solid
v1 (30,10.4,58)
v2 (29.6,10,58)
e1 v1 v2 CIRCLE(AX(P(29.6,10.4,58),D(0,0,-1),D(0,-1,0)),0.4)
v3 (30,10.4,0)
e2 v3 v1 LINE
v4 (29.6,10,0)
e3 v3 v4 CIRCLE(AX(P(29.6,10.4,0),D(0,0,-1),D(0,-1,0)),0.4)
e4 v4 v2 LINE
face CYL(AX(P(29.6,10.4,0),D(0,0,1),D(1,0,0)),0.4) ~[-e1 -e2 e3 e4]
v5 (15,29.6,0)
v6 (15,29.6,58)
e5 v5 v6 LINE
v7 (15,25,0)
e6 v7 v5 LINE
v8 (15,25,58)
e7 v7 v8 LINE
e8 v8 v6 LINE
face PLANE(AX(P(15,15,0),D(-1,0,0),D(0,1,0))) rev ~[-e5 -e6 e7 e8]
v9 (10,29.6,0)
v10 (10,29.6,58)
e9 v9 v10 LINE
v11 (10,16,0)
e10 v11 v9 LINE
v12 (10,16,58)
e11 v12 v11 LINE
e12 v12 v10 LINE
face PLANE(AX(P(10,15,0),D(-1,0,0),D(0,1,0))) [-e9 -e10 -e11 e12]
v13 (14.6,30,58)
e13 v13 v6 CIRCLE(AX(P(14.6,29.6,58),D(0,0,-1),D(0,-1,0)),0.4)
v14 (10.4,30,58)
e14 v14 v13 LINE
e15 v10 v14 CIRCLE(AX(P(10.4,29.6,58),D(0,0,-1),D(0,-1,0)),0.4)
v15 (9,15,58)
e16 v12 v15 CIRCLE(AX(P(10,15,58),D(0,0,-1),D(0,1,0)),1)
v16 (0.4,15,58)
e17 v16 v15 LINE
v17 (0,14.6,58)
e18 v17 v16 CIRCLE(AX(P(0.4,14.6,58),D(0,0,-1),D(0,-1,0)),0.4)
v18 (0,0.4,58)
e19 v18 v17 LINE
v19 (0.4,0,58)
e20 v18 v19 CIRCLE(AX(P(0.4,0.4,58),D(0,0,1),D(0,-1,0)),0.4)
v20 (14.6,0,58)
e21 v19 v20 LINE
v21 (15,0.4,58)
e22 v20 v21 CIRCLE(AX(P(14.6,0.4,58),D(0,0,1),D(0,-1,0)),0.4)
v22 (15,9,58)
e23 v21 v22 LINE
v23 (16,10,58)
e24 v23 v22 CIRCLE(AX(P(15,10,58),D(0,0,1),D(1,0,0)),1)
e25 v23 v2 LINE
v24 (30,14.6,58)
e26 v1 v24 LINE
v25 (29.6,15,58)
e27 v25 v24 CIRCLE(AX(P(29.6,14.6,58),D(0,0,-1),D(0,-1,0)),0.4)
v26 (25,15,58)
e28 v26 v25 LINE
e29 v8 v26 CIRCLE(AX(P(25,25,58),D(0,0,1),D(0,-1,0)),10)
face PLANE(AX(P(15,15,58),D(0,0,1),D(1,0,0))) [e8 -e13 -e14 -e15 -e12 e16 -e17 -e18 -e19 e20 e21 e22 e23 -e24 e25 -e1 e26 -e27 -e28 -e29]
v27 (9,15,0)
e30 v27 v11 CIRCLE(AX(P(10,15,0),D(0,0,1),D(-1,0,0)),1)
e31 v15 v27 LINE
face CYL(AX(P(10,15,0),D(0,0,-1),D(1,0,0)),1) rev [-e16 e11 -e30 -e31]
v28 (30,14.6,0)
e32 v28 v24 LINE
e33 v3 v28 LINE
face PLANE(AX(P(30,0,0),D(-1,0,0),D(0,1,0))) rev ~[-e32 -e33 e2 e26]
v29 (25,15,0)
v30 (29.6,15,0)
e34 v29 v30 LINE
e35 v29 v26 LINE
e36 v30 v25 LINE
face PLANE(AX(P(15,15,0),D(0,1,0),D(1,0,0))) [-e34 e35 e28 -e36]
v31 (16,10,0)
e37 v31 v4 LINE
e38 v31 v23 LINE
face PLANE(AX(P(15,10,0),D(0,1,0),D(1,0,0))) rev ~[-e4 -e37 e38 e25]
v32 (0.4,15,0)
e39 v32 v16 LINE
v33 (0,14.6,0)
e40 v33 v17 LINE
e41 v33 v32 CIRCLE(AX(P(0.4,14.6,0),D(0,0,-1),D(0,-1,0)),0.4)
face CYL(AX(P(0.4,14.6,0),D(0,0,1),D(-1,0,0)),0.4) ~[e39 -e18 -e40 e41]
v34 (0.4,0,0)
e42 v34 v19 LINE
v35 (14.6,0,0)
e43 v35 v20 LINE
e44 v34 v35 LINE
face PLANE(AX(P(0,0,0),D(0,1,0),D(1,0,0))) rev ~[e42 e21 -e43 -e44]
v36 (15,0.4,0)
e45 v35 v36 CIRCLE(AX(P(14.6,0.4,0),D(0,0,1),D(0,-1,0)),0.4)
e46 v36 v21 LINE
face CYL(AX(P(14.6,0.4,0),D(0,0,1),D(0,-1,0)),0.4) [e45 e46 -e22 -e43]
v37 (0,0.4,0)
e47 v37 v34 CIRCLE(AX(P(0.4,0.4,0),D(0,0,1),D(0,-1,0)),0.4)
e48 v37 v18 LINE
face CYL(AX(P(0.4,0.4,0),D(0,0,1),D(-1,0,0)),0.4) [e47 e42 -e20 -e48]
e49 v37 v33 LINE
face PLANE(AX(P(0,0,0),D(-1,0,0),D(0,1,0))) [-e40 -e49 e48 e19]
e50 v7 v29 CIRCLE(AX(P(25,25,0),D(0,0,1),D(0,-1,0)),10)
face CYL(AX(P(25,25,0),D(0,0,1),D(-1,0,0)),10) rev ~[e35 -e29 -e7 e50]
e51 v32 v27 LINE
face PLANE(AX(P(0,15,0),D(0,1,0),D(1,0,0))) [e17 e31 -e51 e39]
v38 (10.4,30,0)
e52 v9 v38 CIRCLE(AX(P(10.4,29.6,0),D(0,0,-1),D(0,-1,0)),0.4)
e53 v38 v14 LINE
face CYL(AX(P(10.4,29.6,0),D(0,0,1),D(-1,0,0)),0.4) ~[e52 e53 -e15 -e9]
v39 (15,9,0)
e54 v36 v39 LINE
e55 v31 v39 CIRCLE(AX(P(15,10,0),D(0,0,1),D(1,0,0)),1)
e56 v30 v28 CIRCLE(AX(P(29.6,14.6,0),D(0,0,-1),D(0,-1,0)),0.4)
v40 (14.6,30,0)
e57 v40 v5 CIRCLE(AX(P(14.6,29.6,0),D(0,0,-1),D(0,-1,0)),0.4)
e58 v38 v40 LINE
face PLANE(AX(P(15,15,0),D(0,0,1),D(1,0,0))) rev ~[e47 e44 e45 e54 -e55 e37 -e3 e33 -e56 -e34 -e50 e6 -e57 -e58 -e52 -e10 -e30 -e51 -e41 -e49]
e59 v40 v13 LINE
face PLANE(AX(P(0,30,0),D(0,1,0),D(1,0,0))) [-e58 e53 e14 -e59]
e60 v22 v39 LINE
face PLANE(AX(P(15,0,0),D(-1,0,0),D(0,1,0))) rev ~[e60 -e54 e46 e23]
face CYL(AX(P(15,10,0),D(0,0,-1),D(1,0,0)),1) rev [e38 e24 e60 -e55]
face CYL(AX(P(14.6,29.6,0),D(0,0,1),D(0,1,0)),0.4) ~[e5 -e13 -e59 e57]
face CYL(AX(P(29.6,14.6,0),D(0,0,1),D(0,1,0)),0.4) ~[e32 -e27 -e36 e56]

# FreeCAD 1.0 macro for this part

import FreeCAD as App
import Part
import Sketcher


def edges_at(feature, points):
    """Names of the edges that pass closest to the given points."""
    edges = feature.Shape.Edges
    near = lambda p: min(range(len(edges)), key=lambda i: edges[i].distToShape(Part.Vertex(*p))[0])
    return sorted({f"Edge{near(p) + 1}" for p in points})


def add_polygon(sketch, points):
    """Adds a closed chain of lines whose ends are joined by coincident constraints."""
    first, n = sketch.GeometryCount, len(points)
    for a, b in zip(points, points[1:] + points[:1]):
        sketch.addGeometry(Part.LineSegment(App.Vector(*a, 0), App.Vector(*b, 0)), False)
    for i in range(n):
        sketch.addConstraint(Sketcher.Constraint("Coincident", first + i, 2, first + (i + 1) % n, 1))

doc = App.newDocument("Part")
body = doc.addObject("PartDesign::Body", "Body")

sketch1 = body.newObject("Sketcher::SketchObject", "Sketch")
sketch1.AttachmentSupport = (doc.getObject("XY_Plane"), [""])
sketch1.MapMode = "FlatFace"
add_polygon(sketch1, [(15, 30), (15, 15), (30, 15), (30, 30)])
sketch1.addConstraint(Sketcher.Constraint("Vertical", 0))
sketch1.addConstraint(Sketcher.Constraint("Horizontal", 1))
sketch1.addConstraint(Sketcher.Constraint("Vertical", 2))
sketch1.addConstraint(Sketcher.Constraint("Horizontal", 3))
sketch1.addConstraint(Sketcher.Constraint("Equal", 3, 0))
sketch1.addConstraint(Sketcher.Constraint("DistanceX", 1, 1, 1, 2, 15.0))
sketch1.addConstraint(Sketcher.Constraint("DistanceX", -1, 1, 0, 2, 15.0))
sketch1.addConstraint(Sketcher.Constraint("DistanceY", -1, 1, 0, 2, 15.0))
pad1 = body.newObject("PartDesign::Pad", "Pad")
pad1.Profile = sketch1
pad1.Length = 58
doc.recompute()

fillet = body.newObject("PartDesign::Fillet", "Fillet")
fillet.Base = (pad1, edges_at(pad1, [(15, 15, 29)]))
fillet.Radius = 10
body2 = doc.addObject("PartDesign::Body", "Body001")

sketch2 = body2.newObject("Sketcher::SketchObject", "Sketch001")
sketch2.AttachmentSupport = (doc.getObject("XY_Plane001"), [""])
sketch2.MapMode = "FlatFace"
sketch2.addGeometry(Part.Circle(App.Vector(15, 10, 0), App.Vector(0, 0, 1), 1), False)
sketch2.addConstraint(Sketcher.Constraint("Diameter", 0, 2.0))
sketch2.addConstraint(Sketcher.Constraint("DistanceX", -1, 1, 0, 3, 15.0))
sketch2.addConstraint(Sketcher.Constraint("DistanceY", -1, 1, 0, 3, 10.0))
pad2 = body2.newObject("PartDesign::Pad", "Pad001")
pad2.Profile = sketch2
pad2.Length = 58
body3 = doc.addObject("PartDesign::Body", "Body002")

sketch3 = body3.newObject("Sketcher::SketchObject", "Sketch002")
sketch3.AttachmentSupport = (doc.getObject("XY_Plane002"), [""])
sketch3.MapMode = "FlatFace"
sketch3.addGeometry(Part.Circle(App.Vector(10, 15, 0), App.Vector(0, 0, 1), 1), False)
sketch3.addConstraint(Sketcher.Constraint("Diameter", 0, 2.0))
sketch3.addConstraint(Sketcher.Constraint("DistanceX", -1, 1, 0, 3, 10.0))
sketch3.addConstraint(Sketcher.Constraint("DistanceY", -1, 1, 0, 3, 15.0))
pad3 = body3.newObject("PartDesign::Pad", "Pad002")
pad3.Profile = sketch3
pad3.Length = 58
body4 = doc.addObject("PartDesign::Body", "Body003")

sketch4 = body4.newObject("Sketcher::SketchObject", "Sketch003")
sketch4.AttachmentSupport = (doc.getObject("XY_Plane003"), [""])
sketch4.MapMode = "FlatFace"
add_polygon(sketch4, [(0, 30), (0, 15), (10, 15), (10, 30)])
sketch4.addConstraint(Sketcher.Constraint("Vertical", 0))
sketch4.addConstraint(Sketcher.Constraint("Horizontal", 1))
sketch4.addConstraint(Sketcher.Constraint("Vertical", 2))
sketch4.addConstraint(Sketcher.Constraint("Horizontal", 3))
sketch4.addConstraint(Sketcher.Constraint("PointOnObject", 0, 2, -2))
sketch4.addConstraint(Sketcher.Constraint("DistanceX", 1, 1, 1, 2, 10.0))
sketch4.addConstraint(Sketcher.Constraint("DistanceY", 0, 2, 0, 1, 15.0))
sketch4.addConstraint(Sketcher.Constraint("DistanceY", -1, 1, 0, 2, 15.0))
pad4 = body4.newObject("PartDesign::Pad", "Pad003")
pad4.Profile = sketch4
pad4.Length = 58
body5 = doc.addObject("PartDesign::Body", "Body004")

sketch5 = body5.newObject("Sketcher::SketchObject", "Sketch004")
sketch5.AttachmentSupport = (doc.getObject("XY_Plane004"), [""])
sketch5.MapMode = "FlatFace"
add_polygon(sketch5, [(15, 10), (15, 0), (30, 0), (30, 10)])
sketch5.addConstraint(Sketcher.Constraint("Vertical", 0))
sketch5.addConstraint(Sketcher.Constraint("Horizontal", 1))
sketch5.addConstraint(Sketcher.Constraint("Vertical", 2))
sketch5.addConstraint(Sketcher.Constraint("Horizontal", 3))
sketch5.addConstraint(Sketcher.Constraint("PointOnObject", 0, 2, -1))
sketch5.addConstraint(Sketcher.Constraint("DistanceX", 1, 1, 1, 2, 15.0))
sketch5.addConstraint(Sketcher.Constraint("DistanceY", 0, 2, 0, 1, 10.0))
sketch5.addConstraint(Sketcher.Constraint("DistanceX", -1, 1, 0, 2, 15.0))
pad5 = body5.newObject("PartDesign::Pad", "Pad004")
pad5.Profile = sketch5
pad5.Length = 58
body6 = doc.addObject("PartDesign::Body", "Body005")

sketch6 = body6.newObject("Sketcher::SketchObject", "Sketch005")
sketch6.AttachmentSupport = (doc.getObject("XY_Plane005"), [""])
sketch6.MapMode = "FlatFace"
add_polygon(sketch6, [(0, 30), (0, 0), (30, 0), (30, 30)])
sketch6.addConstraint(Sketcher.Constraint("Vertical", 0))
sketch6.addConstraint(Sketcher.Constraint("Horizontal", 1))
sketch6.addConstraint(Sketcher.Constraint("Vertical", 2))
sketch6.addConstraint(Sketcher.Constraint("Horizontal", 3))
sketch6.addConstraint(Sketcher.Constraint("Coincident", 0, 2, -1, 1))
sketch6.addConstraint(Sketcher.Constraint("Equal", 3, 0))
sketch6.addConstraint(Sketcher.Constraint("DistanceX", 1, 1, 1, 2, 30.0))
pad6 = body6.newObject("PartDesign::Pad", "Pad005")
pad6.Profile = sketch6
pad6.Length = 58
doc.recompute()

boolean = body6.newObject("PartDesign::Boolean", "Boolean")
boolean.Type = "Cut"
boolean.addObjects([body5])
doc.recompute()

boolean2 = body6.newObject("PartDesign::Boolean", "Boolean001")
boolean2.Type = "Cut"
boolean2.addObjects([body4])
doc.recompute()

boolean3 = body6.newObject("PartDesign::Boolean", "Boolean002")
boolean3.Type = "Cut"
boolean3.addObjects([body3])
doc.recompute()

boolean4 = body6.newObject("PartDesign::Boolean", "Boolean003")
boolean4.Type = "Cut"
boolean4.addObjects([body2])
doc.recompute()

boolean5 = body6.newObject("PartDesign::Boolean", "Boolean004")
boolean5.Type = "Cut"
boolean5.addObjects([body])
doc.recompute()

fillet2 = body6.newObject("PartDesign::Fillet", "Fillet001")
fillet2.Base = (boolean5, edges_at(boolean5, [
    (0, 15, 29),
    (0, 0, 29),
    (15, 0, 29),
    (15, 30, 29),
    (10, 30, 29),
    (30, 15, 29),
    (30, 10, 29),
]))
fillet2.Radius = 0.4

doc.recompute()
